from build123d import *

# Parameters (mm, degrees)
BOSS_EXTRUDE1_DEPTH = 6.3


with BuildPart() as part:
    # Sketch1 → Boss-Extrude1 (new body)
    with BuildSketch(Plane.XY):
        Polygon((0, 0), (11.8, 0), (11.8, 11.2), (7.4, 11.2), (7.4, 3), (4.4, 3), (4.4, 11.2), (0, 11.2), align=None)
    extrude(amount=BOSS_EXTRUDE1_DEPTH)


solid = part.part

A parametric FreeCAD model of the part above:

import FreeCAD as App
import Part
import Sketcher
from FreeCAD import Vector
Q = App.Units.Quantity

doc = App.newDocument("Part")
params = doc.addObject("Spreadsheet::Sheet", "Params")
for row, (alias, value) in enumerate([
    ("sketch1_width", "3 mm"),
    ("sketch1_width2", "11.8 mm"),
    ("sketch1_height", "11.2 mm"),
    ("sketch1_height2", "8.2 mm"),
    ("pad1_length", "6.3 mm"),
], start=1):
    params.set(f"A{row}", alias)
    params.set(f"B{row}", "=" + value)
    params.setAlias(f"B{row}", alias)

body = doc.addObject("PartDesign::Body", "Body")

# Sketch on XY plane
sketch1 = body.newObject("Sketcher::SketchObject", "Sketch")
sketch1.AttachmentSupport = (doc.getObject("XY_Plane"), [""])
sketch1.MapMode = "FlatFace"
sketch1.addGeometry(Part.LineSegment(Vector(0, 0, 0), Vector(11.8, 0, 0)), False)
sketch1.addGeometry(Part.LineSegment(Vector(11.8, 0, 0), Vector(11.8, 11.2, 0)), False)
sketch1.addGeometry(Part.LineSegment(Vector(11.8, 11.2, 0), Vector(7.4, 11.2, 0)), False)
sketch1.addGeometry(Part.LineSegment(Vector(7.4, 11.2, 0), Vector(7.4, 3, 0)), False)
sketch1.addGeometry(Part.LineSegment(Vector(7.4, 3, 0), Vector(4.4, 3, 0)), False)
sketch1.addGeometry(Part.LineSegment(Vector(4.4, 3, 0), Vector(4.4, 11.2, 0)), False)
sketch1.addGeometry(Part.LineSegment(Vector(4.4, 11.2, 0), Vector(0, 11.2, 0)), False)
sketch1.addGeometry(Part.LineSegment(Vector(0, 11.2, 0), Vector(0, 0, 0)), False)
sketch1.addConstraint(Sketcher.Constraint("Coincident", 0, 2, 1, 1))
sketch1.addConstraint(Sketcher.Constraint("Coincident", 1, 2, 2, 1))
sketch1.addConstraint(Sketcher.Constraint("Coincident", 2, 2, 3, 1))
sketch1.addConstraint(Sketcher.Constraint("Coincident", 3, 2, 4, 1))
sketch1.addConstraint(Sketcher.Constraint("Coincident", 4, 2, 5, 1))
sketch1.addConstraint(Sketcher.Constraint("Coincident", 5, 2, 6, 1))
sketch1.addConstraint(Sketcher.Constraint("Coincident", 6, 2, 7, 1))
sketch1.addConstraint(Sketcher.Constraint("Coincident", 7, 2, 0, 1))
sketch1.addConstraint(Sketcher.Constraint("Horizontal", 0))
sketch1.addConstraint(Sketcher.Constraint("Vertical", 1))
sketch1.addConstraint(Sketcher.Constraint("Horizontal", 2))
sketch1.addConstraint(Sketcher.Constraint("Vertical", 3))
sketch1.addConstraint(Sketcher.Constraint("Horizontal", 4))
sketch1.addConstraint(Sketcher.Constraint("Vertical", 5))
sketch1.addConstraint(Sketcher.Constraint("Horizontal", 6))
sketch1.addConstraint(Sketcher.Constraint("Vertical", 7))
sketch1.addConstraint(Sketcher.Constraint("Coincident", 7, 2, -1, 1))
sketch1.addConstraint(Sketcher.Constraint("Horizontal", 2, 2, 5, 2))
sketch1.addConstraint(Sketcher.Constraint("Equal", 2, 6))
sketch1.addConstraint(Sketcher.Constraint("DistanceX", 4, 2, 4, 1, Q("3 mm")))
sketch1.addConstraint(Sketcher.Constraint("DistanceX", 0, 1, 0, 2, Q("11.8 mm")))
sketch1.addConstraint(Sketcher.Constraint("DistanceY", 1, 1, 1, 2, Q("11.2 mm")))
sketch1.addConstraint(Sketcher.Constraint("DistanceY", 3, 2, 3, 1, Q("8.2 mm")))
sketch1.setExpression("Constraints[19]", "Params.sketch1_width")
sketch1.setExpression("Constraints[20]", "Params.sketch1_width2")
sketch1.setExpression("Constraints[21]", "Params.sketch1_height")
sketch1.setExpression("Constraints[22]", "Params.sketch1_height2")
pad1 = body.newObject("PartDesign::Pad", "Pad")
pad1.Profile = sketch1
pad1.setExpression("Length", "Params.pad1_length")

doc.recompute()
